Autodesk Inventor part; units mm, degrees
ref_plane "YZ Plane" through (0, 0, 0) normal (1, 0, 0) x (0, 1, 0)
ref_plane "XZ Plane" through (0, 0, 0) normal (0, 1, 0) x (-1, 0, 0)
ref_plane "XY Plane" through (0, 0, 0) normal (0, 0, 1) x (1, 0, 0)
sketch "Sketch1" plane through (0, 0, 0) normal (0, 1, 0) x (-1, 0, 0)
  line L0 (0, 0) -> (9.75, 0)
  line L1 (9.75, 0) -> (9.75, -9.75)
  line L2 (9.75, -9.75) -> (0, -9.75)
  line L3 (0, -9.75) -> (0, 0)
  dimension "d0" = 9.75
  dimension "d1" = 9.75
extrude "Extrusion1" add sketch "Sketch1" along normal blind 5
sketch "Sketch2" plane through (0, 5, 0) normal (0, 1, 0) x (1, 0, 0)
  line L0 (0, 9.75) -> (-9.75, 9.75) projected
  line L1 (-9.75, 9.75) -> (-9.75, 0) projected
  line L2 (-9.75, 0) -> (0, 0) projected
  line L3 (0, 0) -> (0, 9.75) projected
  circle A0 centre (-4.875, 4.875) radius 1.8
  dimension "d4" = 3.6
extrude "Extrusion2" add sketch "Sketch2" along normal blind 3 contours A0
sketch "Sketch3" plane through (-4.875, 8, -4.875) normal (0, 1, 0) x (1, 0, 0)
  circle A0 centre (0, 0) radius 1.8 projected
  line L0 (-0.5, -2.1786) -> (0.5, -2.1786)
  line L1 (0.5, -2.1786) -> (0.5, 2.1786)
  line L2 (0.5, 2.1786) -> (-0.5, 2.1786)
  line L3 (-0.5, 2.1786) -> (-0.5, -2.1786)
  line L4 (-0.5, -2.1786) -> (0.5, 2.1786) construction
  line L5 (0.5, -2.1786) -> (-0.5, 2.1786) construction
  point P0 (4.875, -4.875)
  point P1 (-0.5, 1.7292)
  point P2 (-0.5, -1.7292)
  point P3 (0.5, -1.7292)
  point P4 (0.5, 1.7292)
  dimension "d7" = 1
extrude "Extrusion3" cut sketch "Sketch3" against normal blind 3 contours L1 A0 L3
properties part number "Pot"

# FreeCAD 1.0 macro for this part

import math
import FreeCAD as App
import Part
import Sketcher
from FreeCAD import Vector

doc = App.newDocument("Part")
body = doc.addObject("PartDesign::Body", "Body")

# Sketch on XZ plane
sketch1 = body.newObject("Sketcher::SketchObject", "Sketch")
sketch1.AttachmentSupport = (doc.getObject("XZ_Plane"), [""])
sketch1.MapMode = "FlatFace"
sketch1.addGeometry([
    Part.LineSegment(Vector(-9.75, 0, 0), Vector(0, 0, 0)),
    Part.LineSegment(Vector(0, 0, 0), Vector(0, -9.75, 0)),
    Part.LineSegment(Vector(0, -9.75, 0), Vector(-9.75, -9.75, 0)),
    Part.LineSegment(Vector(-9.75, -9.75, 0), Vector(-9.75, 0, 0)),
], False)
sketch1.addConstraint([
    Sketcher.Constraint("Coincident", 0, 2, 1, 1),
    Sketcher.Constraint("Coincident", 1, 2, 2, 1),
    Sketcher.Constraint("Coincident", 2, 2, 3, 1),
    Sketcher.Constraint("Coincident", 3, 2, 0, 1),
    Sketcher.Constraint("Horizontal", 0),
    Sketcher.Constraint("Vertical", 1),
    Sketcher.Constraint("Horizontal", 2),
    Sketcher.Constraint("Vertical", 3),
    Sketcher.Constraint("Coincident", 0, 2, -1, 1),
    Sketcher.Constraint("Equal", 2, 1),
    Sketcher.Constraint("DistanceX", 0, 1, 0, 2, 9.75),
])
pad1 = body.newObject("PartDesign::Pad", "Pad")
pad1.Profile = sketch1
pad1.Length = 5
pad1.Reversed = True

# Sketch on XZ plane
sketch2 = body.newObject("Sketcher::SketchObject", "Sketch001")
sketch2.AttachmentSupport = (doc.getObject("XZ_Plane"), [""])
sketch2.MapMode = "FlatFace"
sketch2.AttachmentOffset = App.Placement(Vector(0, 0, -5), App.Rotation())
sketch2.addGeometry(Part.Circle(Vector(-4.875, -4.875, 0), Vector(0, 0, 1), 1.8), False)
sketch2.addConstraint([
    Sketcher.Constraint("Diameter", 0, 3.6),
    Sketcher.Constraint("DistanceX", 0, 3, -1, 1, 4.875),
    Sketcher.Constraint("DistanceY", 0, 3, -1, 1, 4.875),
])
pad2 = body.newObject("PartDesign::Pad", "Pad001")
pad2.Profile = sketch2
pad2.Length = 3
pad2.Reversed = True

# Sketch on XZ plane
sketch3 = body.newObject("Sketcher::SketchObject", "Sketch002")
sketch3.AttachmentSupport = (doc.getObject("XZ_Plane"), [""])
sketch3.MapMode = "FlatFace"
sketch3.AttachmentOffset = App.Placement(Vector(0, 0, -8), App.Rotation())
sketch3.addGeometry([
    Part.LineSegment(Vector(-4.375, -3.145838, 0), Vector(-4.375, -6.604162, 0)),
    Part.ArcOfCircle(Part.Circle(Vector(-4.875, -4.875, 0), Vector(0, 0, 1), 1.8), math.radians(-106.12762), math.radians(-73.87238)),
    Part.LineSegment(Vector(-5.375, -6.604162, 0), Vector(-5.375, -3.145838, 0)),
    Part.ArcOfCircle(Part.Circle(Vector(-4.875, -4.875, 0), Vector(0, 0, 1), 1.8), math.radians(73.87238), math.radians(106.12762)),
], False)
sketch3.addConstraint([
    Sketcher.Constraint("Coincident", 0, 2, 1, 2),
    Sketcher.Constraint("Coincident", 1, 1, 2, 1),
    Sketcher.Constraint("Coincident", 2, 2, 3, 2),
    Sketcher.Constraint("Coincident", 3, 1, 0, 1),
    Sketcher.Constraint("Vertical", 0),
    Sketcher.Constraint("Vertical", 2),
    Sketcher.Constraint("Coincident", 3, 3, 1, 3),
    Sketcher.Constraint("Equal", 1, 3),
    Sketcher.Constraint("Horizontal", 0, 2, 1, 1),
    Sketcher.Constraint("DistanceX", 1, 1, 0, 2, 1.0),
    Sketcher.Constraint("Radius", 1, 1.8),
    Sketcher.Constraint("DistanceX", 1, 3, -1, 1, 4.875),
    Sketcher.Constraint("DistanceY", 1, 3, -1, 1, 4.875),
])
pocket1 = body.newObject("PartDesign::Pocket", "Pocket")
pocket1.Profile = sketch3
pocket1.Length = 3
pocket1.Reversed = True

doc.recompute()
